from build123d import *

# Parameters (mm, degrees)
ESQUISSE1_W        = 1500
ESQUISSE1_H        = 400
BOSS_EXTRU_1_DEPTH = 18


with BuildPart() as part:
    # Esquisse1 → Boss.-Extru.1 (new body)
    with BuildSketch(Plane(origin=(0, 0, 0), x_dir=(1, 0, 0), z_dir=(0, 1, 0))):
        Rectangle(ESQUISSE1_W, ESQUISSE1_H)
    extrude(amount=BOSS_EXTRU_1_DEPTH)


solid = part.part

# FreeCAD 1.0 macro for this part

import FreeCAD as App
import Part
import Sketcher
from FreeCAD import Vector
Q = App.Units.Quantity


def add_polygon(sketch, points):
    """Adds a closed chain of lines whose ends are joined by coincident constraints."""
    first, n = sketch.GeometryCount, len(points)
    for a, b in zip(points, points[1:] + points[:1]):
        sketch.addGeometry(Part.LineSegment(App.Vector(*a, 0), App.Vector(*b, 0)), False)
    for i in range(n):
        sketch.addConstraint(Sketcher.Constraint("Coincident", first + i, 2, first + (i + 1) % n, 1))

doc = App.newDocument("Part")
params = doc.addObject("Spreadsheet::Sheet", "Params")
for row, (alias, value) in enumerate([
    ("sketch1_width", "1500 mm"),
    ("sketch1_height", "400 mm"),
    ("pad1_length", "18 mm"),
], start=1):
    params.set(f"A{row}", alias)
    params.set(f"B{row}", "=" + value)
    params.setAlias(f"B{row}", alias)

body = doc.addObject("PartDesign::Body", "Body")

sketch1 = body.newObject("Sketcher::SketchObject", "Sketch")
sketch1.AttachmentSupport = (doc.getObject("XZ_Plane"), [""])
sketch1.MapMode = "FlatFace"
add_polygon(sketch1, [(-750, -200), (-750, 200), (750, 200), (750, -200)])
sketch1.addConstraint([
    Sketcher.Constraint("Vertical", 0),
    Sketcher.Constraint("Horizontal", 1),
    Sketcher.Constraint("Vertical", 2),
    Sketcher.Constraint("Horizontal", 3),
    Sketcher.Constraint("Symmetric", 0, 2, 2, 2, -1, 1),
    Sketcher.Constraint("DistanceX", 1, 1, 1, 2, Q("1500 mm")),
    Sketcher.Constraint("DistanceY", 0, 1, 0, 2, Q("400 mm")),
])
sketch1.setExpression("Constraints[9]", "Params.sketch1_width")
sketch1.setExpression("Constraints[10]", "Params.sketch1_height")
pad1 = body.newObject("PartDesign::Pad", "Pad")
pad1.Profile = sketch1
pad1.setExpression("Length", "Params.pad1_length")
pad1.Reversed = True

doc.recompute()
